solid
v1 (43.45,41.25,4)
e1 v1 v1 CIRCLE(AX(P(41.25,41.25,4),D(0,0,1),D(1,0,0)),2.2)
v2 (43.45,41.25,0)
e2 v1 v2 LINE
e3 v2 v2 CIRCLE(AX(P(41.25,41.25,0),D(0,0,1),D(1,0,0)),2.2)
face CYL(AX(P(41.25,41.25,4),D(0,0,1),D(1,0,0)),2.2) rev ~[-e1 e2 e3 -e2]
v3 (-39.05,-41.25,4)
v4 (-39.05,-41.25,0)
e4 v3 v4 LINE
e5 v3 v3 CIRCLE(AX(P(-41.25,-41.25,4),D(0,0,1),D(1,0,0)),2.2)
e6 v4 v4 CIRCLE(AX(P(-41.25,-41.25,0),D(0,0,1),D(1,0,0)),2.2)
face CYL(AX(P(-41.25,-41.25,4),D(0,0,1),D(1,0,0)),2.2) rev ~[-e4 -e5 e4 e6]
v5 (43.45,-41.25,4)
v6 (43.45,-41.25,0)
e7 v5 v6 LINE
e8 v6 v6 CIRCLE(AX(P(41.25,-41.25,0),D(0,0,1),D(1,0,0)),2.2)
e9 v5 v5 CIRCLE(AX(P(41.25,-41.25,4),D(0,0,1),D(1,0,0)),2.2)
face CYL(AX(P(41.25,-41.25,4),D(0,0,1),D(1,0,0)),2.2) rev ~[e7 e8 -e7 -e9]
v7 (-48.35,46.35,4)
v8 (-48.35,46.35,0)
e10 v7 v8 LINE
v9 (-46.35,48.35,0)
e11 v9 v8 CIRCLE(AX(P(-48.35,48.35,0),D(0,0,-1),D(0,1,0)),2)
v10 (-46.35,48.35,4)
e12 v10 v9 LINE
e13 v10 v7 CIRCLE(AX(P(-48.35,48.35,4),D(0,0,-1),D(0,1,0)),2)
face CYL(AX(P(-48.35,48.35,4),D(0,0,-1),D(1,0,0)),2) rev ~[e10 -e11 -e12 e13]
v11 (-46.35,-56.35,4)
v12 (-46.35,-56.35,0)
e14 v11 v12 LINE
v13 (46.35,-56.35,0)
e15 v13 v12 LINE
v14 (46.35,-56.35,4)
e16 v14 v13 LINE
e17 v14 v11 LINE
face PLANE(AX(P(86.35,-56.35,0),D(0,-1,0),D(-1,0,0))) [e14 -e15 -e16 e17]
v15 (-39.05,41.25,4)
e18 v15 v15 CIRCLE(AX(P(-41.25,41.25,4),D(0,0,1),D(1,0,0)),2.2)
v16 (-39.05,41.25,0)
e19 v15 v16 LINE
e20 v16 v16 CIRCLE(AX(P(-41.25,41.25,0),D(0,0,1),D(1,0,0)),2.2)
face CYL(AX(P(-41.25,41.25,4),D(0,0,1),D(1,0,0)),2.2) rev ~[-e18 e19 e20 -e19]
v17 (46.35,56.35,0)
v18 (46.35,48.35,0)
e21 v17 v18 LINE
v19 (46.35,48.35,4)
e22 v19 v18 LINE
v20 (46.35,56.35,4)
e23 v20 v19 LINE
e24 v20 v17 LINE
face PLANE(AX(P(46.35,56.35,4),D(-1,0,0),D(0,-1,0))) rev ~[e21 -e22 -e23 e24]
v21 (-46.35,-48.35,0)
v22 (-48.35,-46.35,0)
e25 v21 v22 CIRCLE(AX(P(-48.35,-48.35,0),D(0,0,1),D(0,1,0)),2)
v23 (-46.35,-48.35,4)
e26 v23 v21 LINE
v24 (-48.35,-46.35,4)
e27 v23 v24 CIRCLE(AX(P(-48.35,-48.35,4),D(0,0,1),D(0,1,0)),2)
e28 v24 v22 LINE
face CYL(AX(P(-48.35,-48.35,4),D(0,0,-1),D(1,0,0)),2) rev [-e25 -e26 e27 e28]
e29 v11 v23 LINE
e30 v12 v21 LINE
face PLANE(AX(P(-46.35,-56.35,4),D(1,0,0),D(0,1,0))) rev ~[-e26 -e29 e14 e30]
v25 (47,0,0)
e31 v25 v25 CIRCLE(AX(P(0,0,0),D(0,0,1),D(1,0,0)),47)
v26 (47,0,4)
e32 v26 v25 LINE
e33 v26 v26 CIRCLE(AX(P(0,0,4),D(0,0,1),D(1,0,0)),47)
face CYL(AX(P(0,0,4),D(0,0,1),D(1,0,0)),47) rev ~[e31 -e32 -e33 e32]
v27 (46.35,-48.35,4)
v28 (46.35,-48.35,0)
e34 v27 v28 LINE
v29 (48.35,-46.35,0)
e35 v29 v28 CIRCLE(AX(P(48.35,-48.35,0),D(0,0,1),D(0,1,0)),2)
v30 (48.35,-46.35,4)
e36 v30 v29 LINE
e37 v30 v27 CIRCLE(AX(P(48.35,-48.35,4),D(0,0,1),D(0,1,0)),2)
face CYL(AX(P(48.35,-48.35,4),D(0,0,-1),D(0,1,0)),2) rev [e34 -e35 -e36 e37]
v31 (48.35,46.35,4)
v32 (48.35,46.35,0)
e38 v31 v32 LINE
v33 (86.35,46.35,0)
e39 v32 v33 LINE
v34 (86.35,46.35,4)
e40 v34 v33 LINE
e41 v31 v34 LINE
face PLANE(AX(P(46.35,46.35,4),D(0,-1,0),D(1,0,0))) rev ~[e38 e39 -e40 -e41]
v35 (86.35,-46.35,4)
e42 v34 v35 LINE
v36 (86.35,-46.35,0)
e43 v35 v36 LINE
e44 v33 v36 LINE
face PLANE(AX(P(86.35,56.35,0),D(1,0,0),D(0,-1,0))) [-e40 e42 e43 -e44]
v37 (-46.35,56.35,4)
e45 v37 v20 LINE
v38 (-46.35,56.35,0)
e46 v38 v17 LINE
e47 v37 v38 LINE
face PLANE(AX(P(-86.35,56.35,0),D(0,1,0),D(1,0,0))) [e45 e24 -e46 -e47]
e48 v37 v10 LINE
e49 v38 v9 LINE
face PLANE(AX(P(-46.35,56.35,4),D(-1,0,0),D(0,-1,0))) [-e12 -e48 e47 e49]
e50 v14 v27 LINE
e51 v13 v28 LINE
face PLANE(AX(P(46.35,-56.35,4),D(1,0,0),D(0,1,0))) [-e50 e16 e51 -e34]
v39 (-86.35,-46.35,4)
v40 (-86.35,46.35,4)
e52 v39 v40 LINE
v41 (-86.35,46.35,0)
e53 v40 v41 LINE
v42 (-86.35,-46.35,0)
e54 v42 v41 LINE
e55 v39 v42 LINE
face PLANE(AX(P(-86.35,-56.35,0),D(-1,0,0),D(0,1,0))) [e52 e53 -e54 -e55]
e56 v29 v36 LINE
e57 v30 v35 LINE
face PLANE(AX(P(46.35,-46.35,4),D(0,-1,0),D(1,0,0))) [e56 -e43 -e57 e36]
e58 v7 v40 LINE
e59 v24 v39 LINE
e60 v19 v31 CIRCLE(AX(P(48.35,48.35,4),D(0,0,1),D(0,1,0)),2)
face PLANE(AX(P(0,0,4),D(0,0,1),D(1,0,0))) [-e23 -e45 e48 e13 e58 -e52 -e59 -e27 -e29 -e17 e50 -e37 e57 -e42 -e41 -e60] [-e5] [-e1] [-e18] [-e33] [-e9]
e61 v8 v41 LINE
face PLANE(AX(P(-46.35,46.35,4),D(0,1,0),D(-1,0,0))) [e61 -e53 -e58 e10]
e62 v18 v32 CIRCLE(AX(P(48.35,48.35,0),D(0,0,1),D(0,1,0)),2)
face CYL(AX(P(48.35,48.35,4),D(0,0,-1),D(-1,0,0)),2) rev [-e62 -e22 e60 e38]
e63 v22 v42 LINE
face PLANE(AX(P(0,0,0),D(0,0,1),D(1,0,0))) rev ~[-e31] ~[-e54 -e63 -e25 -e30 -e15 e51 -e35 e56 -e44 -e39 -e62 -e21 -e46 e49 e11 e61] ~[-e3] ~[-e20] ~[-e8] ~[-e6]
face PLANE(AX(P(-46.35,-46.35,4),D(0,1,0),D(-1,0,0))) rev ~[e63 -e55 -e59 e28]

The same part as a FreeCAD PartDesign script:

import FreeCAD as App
import Part
import Sketcher
from FreeCAD import Vector


def edges_at(feature, points):
    """Names of the edges that pass closest to the given points."""
    edges = feature.Shape.Edges
    near = lambda p: min(range(len(edges)), key=lambda i: edges[i].distToShape(Part.Vertex(*p))[0])
    return sorted({f"Edge{near(p) + 1}" for p in points})

doc = App.newDocument("Part")
body = doc.addObject("PartDesign::Body", "Body")

sketch1 = body.newObject("Sketcher::SketchObject", "Sketch")
sketch1.AttachmentSupport = (doc.getObject("XY_Plane"), [""])
sketch1.MapMode = "FlatFace"
sketch1.addGeometry(Part.LineSegment(Vector(86, 56, 0), Vector(-86, 56, 0)), False)
sketch1.addGeometry(Part.LineSegment(Vector(-86, 56, 0), Vector(-86, -56, 0)), False)
sketch1.addGeometry(Part.LineSegment(Vector(-86, -56, 0), Vector(86, -56, 0)), False)
sketch1.addGeometry(Part.LineSegment(Vector(86, -56, 0), Vector(86, 56, 0)), False)
sketch1.addConstraint(Sketcher.Constraint("Coincident", 0, 2, 1, 1))
sketch1.addConstraint(Sketcher.Constraint("Coincident", 1, 2, 2, 1))
sketch1.addConstraint(Sketcher.Constraint("Coincident", 2, 2, 3, 1))
sketch1.addConstraint(Sketcher.Constraint("Coincident", 3, 2, 0, 1))
sketch1.addConstraint(Sketcher.Constraint("Horizontal", 0))
sketch1.addConstraint(Sketcher.Constraint("Vertical", 1))
sketch1.addConstraint(Sketcher.Constraint("Horizontal", 2))
sketch1.addConstraint(Sketcher.Constraint("Vertical", 3))
sketch1.addConstraint(Sketcher.Constraint("Symmetric", 0, 2, 2, 2, -1, 1))
sketch1.addConstraint(Sketcher.Constraint("DistanceX", 0, 2, 0, 1, 172.7))
sketch1.addConstraint(Sketcher.Constraint("DistanceY", 1, 2, 1, 1, 112.7))
pad1 = body.newObject("PartDesign::Pad", "Pad")
pad1.Profile = sketch1
pad1.Length = 4

sketch2 = body.newObject("Sketcher::SketchObject", "Sketch001")
sketch2.AttachmentSupport = (doc.getObject("XY_Plane"), [""])
sketch2.MapMode = "FlatFace"
sketch2.AttachmentOffset = App.Placement(Vector(0, 0, 4), App.Rotation())
sketch2.addGeometry(Part.Circle(Vector(0, 0, 0), Vector(0, 0, 1), 47), False)
sketch2.addConstraint(Sketcher.Constraint("Coincident", 0, 3, -1, 1))
sketch2.addConstraint(Sketcher.Constraint("Diameter", 0, 94.0))
pocket1 = body.newObject("PartDesign::Pocket", "Pocket")
pocket1.Profile = sketch2
pocket1.Length = 4

sketch3 = body.newObject("Sketcher::SketchObject", "Sketch002")
sketch3.AttachmentSupport = (doc.getObject("XY_Plane"), [""])
sketch3.MapMode = "FlatFace"
sketch3.AttachmentOffset = App.Placement(Vector(0, 0, 4), App.Rotation())
sketch3.addGeometry(Part.Circle(Vector(-41.2, 41.2, 0), Vector(0, 0, 1), 2.2), False)
sketch3.addGeometry(Part.Circle(Vector(41.2, 41.2, 0), Vector(0, 0, 1), 2.2), False)
sketch3.addGeometry(Part.Circle(Vector(41.2, -41.2, 0), Vector(0, 0, 1), 2.2), False)
sketch3.addGeometry(Part.Circle(Vector(-41.2, -41.2, 0), Vector(0, 0, 1), 2.2), False)
sketch3.addConstraint(Sketcher.Constraint("Equal", 0, 1))
sketch3.addConstraint(Sketcher.Constraint("Equal", 1, 2))
sketch3.addConstraint(Sketcher.Constraint("Equal", 2, 3))
sketch3.addConstraint(Sketcher.Constraint("Symmetric", 0, 3, 2, 3, -1, 1))
sketch3.addConstraint(Sketcher.Constraint("Symmetric", 1, 3, 3, 3, -1, 1))
sketch3.addConstraint(Sketcher.Constraint("Symmetric", 0, 3, 1, 3, -2))
sketch3.addConstraint(Sketcher.Constraint("Diameter", 0, 4.4))
sketch3.addConstraint(Sketcher.Constraint("DistanceX", 0, 3, 1, 3, 82.5))
sketch3.addConstraint(Sketcher.Constraint("DistanceY", 2, 3, 1, 3, 82.5))
pocket2 = body.newObject("PartDesign::Pocket", "Pocket001")
pocket2.Profile = sketch3
pocket2.Length = 4

sketch4 = body.newObject("Sketcher::SketchObject", "Sketch003")
sketch4.AttachmentSupport = (doc.getObject("XY_Plane"), [""])
sketch4.MapMode = "FlatFace"
sketch4.AttachmentOffset = App.Placement(Vector(0, 0, 4), App.Rotation())
sketch4.addGeometry(Part.LineSegment(Vector(46, 46, 0), Vector(86, 46, 0)), False)
sketch4.addGeometry(Part.LineSegment(Vector(86, 46, 0), Vector(86, 56, 0)), False)
sketch4.addGeometry(Part.LineSegment(Vector(86, 56, 0), Vector(46, 56, 0)), False)
sketch4.addGeometry(Part.LineSegment(Vector(46, 56, 0), Vector(46, 46, 0)), False)
sketch4.addGeometry(Part.LineSegment(Vector(46, -46, 0), Vector(46, -56, 0)), False)
sketch4.addGeometry(Part.LineSegment(Vector(46, -56, 0), Vector(86, -56, 0)), False)
sketch4.addGeometry(Part.LineSegment(Vector(86, -56, 0), Vector(86, -46, 0)), False)
sketch4.addGeometry(Part.LineSegment(Vector(86, -46, 0), Vector(46, -46, 0)), False)
sketch4.addGeometry(Part.LineSegment(Vector(-46, -46, 0), Vector(-86, -46, 0)), False)
sketch4.addGeometry(Part.LineSegment(Vector(-86, -46, 0), Vector(-86, -56, 0)), False)
sketch4.addGeometry(Part.LineSegment(Vector(-86, -56, 0), Vector(-46, -56, 0)), False)
sketch4.addGeometry(Part.LineSegment(Vector(-46, -56, 0), Vector(-46, -46, 0)), False)
sketch4.addGeometry(Part.LineSegment(Vector(-46, 56, 0), Vector(-86, 56, 0)), False)
sketch4.addGeometry(Part.LineSegment(Vector(-86, 56, 0), Vector(-86, 46, 0)), False)
sketch4.addGeometry(Part.LineSegment(Vector(-86, 46, 0), Vector(-46, 46, 0)), False)
sketch4.addGeometry(Part.LineSegment(Vector(-46, 46, 0), Vector(-46, 56, 0)), False)
sketch4.addConstraint(Sketcher.Constraint("Coincident", 0, 2, 1, 1))
sketch4.addConstraint(Sketcher.Constraint("Coincident", 1, 2, 2, 1))
sketch4.addConstraint(Sketcher.Constraint("Coincident", 2, 2, 3, 1))
sketch4.addConstraint(Sketcher.Constraint("Coincident", 3, 2, 0, 1))
sketch4.addConstraint(Sketcher.Constraint("Coincident", 4, 2, 5, 1))
sketch4.addConstraint(Sketcher.Constraint("Coincident", 5, 2, 6, 1))
sketch4.addConstraint(Sketcher.Constraint("Coincident", 6, 2, 7, 1))
sketch4.addConstraint(Sketcher.Constraint("Coincident", 7, 2, 4, 1))
sketch4.addConstraint(Sketcher.Constraint("Coincident", 8, 2, 9, 1))
sketch4.addConstraint(Sketcher.Constraint("Coincident", 9, 2, 10, 1))
sketch4.addConstraint(Sketcher.Constraint("Coincident", 10, 2, 11, 1))
sketch4.addConstraint(Sketcher.Constraint("Coincident", 11, 2, 8, 1))
sketch4.addConstraint(Sketcher.Constraint("Coincident", 12, 2, 13, 1))
sketch4.addConstraint(Sketcher.Constraint("Coincident", 13, 2, 14, 1))
sketch4.addConstraint(Sketcher.Constraint("Coincident", 14, 2, 15, 1))
sketch4.addConstraint(Sketcher.Constraint("Coincident", 15, 2, 12, 1))
sketch4.addConstraint(Sketcher.Constraint("Horizontal", 0))
sketch4.addConstraint(Sketcher.Constraint("Vertical", 1))
sketch4.addConstraint(Sketcher.Constraint("Horizontal", 2))
sketch4.addConstraint(Sketcher.Constraint("Vertical", 3))
sketch4.addConstraint(Sketcher.Constraint("Vertical", 4))
sketch4.addConstraint(Sketcher.Constraint("Horizontal", 5))
sketch4.addConstraint(Sketcher.Constraint("Vertical", 6))
sketch4.addConstraint(Sketcher.Constraint("Horizontal", 7))
sketch4.addConstraint(Sketcher.Constraint("Horizontal", 8))
sketch4.addConstraint(Sketcher.Constraint("Vertical", 9))
sketch4.addConstraint(Sketcher.Constraint("Horizontal", 10))
sketch4.addConstraint(Sketcher.Constraint("Vertical", 11))
sketch4.addConstraint(Sketcher.Constraint("Horizontal", 12))
sketch4.addConstraint(Sketcher.Constraint("Vertical", 13))
sketch4.addConstraint(Sketcher.Constraint("Horizontal", 14))
sketch4.addConstraint(Sketcher.Constraint("Vertical", 15))
sketch4.addConstraint(Sketcher.Constraint("Symmetric", 0, 2, 8, 2, -1, 1))
sketch4.addConstraint(Sketcher.Constraint("Symmetric", 2, 2, 10, 2, -1, 1))
sketch4.addConstraint(Sketcher.Constraint("Symmetric", 5, 2, 12, 2, -1, 1))
sketch4.addConstraint(Sketcher.Constraint("Symmetric", 7, 2, 14, 2, -1, 1))
sketch4.addConstraint(Sketcher.Constraint("Symmetric", 6, 2, 8, 2, -2))
sketch4.addConstraint(Sketcher.Constraint("Symmetric", 4, 2, 10, 2, -2))
sketch4.addConstraint(Sketcher.Constraint("DistanceX", 0, 1, 0, 2, 40.0))
sketch4.addConstraint(Sketcher.Constraint("DistanceY", 1, 1, 1, 2, 10.0))
sketch4.addConstraint(Sketcher.Constraint("DistanceY", 4, 2, 3, 2, 102.7))
sketch4.addConstraint(Sketcher.Constraint("DistanceX", 8, 2, 7, 2, 132.7))
pocket3 = body.newObject("PartDesign::Pocket", "Pocket002")
pocket3.Profile = sketch4
pocket3.Length = 10
doc.recompute()

fillet = body.newObject("PartDesign::Fillet", "Fillet")
fillet.Base = (pocket3, edges_at(pocket3, [
    (-46.35, 46.35, 2),
    (46.35, 46.35, 2),
    (46.35, -46.35, 2),
    (-46.35, -46.35, 2),
]))
fillet.Radius = 2

doc.recompute()
